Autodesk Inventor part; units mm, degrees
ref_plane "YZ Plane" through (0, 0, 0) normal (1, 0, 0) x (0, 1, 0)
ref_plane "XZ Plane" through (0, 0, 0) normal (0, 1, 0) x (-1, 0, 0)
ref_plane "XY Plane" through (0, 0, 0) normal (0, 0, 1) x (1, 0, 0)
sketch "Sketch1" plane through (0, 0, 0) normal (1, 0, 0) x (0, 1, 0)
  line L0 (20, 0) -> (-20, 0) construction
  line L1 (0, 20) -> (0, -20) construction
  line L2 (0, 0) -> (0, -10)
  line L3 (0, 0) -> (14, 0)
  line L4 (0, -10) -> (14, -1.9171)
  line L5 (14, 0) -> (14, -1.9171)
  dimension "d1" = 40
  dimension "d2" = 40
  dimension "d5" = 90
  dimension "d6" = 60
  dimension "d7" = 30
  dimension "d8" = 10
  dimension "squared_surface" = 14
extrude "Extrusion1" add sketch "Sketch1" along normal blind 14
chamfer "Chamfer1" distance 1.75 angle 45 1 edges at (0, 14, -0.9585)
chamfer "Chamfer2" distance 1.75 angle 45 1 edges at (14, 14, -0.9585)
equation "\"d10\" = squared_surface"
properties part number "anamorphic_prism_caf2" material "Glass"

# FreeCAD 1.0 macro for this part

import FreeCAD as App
import Part
import Sketcher

V = App.Vector
Q = App.Units.Quantity


def edges_at(feature, points):
    """Names of the edges that pass closest to the given points."""
    edges = feature.Shape.Edges
    near = lambda p: min(range(len(edges)), key=lambda i: edges[i].distToShape(Part.Vertex(*p))[0])
    return sorted({f"Edge{near(p) + 1}" for p in points})

doc = App.newDocument("Part")
params = doc.addObject("Spreadsheet::Sheet", "Params")
for row, (alias, value) in enumerate([
    ("sketch1_width", "14 mm"),
    ("sketch1_height", "10 mm"),
    ("pad1_length", "14 mm"),
    ("chamfer_size", "1.75 mm"),
    ("chamfer2_size", "1.75 mm"),
], start=1):
    params.set(f"A{row}", alias)
    params.set(f"B{row}", "=" + value)
    params.setAlias(f"B{row}", alias)

body = doc.addObject("PartDesign::Body", "Body")

# Sketch on YZ plane
sketch1 = doc.addObject("Sketcher::SketchObject", "Sketch")
body.addObject(sketch1)
sketch1.AttachmentSupport = (doc.YZ_Plane, [""])
sketch1.MapMode = "FlatFace"
sketch1.addGeometry(Part.LineSegment(V(14, 0, 0), V(0, 0, 0)), False)
sketch1.addGeometry(Part.LineSegment(V(0, 0, 0), V(0, -10, 0)), False)
sketch1.addGeometry(Part.LineSegment(V(0, -10, 0), V(14, -1.9, 0)), False)
sketch1.addGeometry(Part.LineSegment(V(14, -1.9, 0), V(14, 0, 0)), False)
sketch1.addConstraint(Sketcher.Constraint("Coincident", 0, 2, 1, 1))
sketch1.addConstraint(Sketcher.Constraint("Coincident", 1, 2, 2, 1))
sketch1.addConstraint(Sketcher.Constraint("Coincident", 2, 2, 3, 1))
sketch1.addConstraint(Sketcher.Constraint("Coincident", 3, 2, 0, 1))
sketch1.addConstraint(Sketcher.Constraint("Horizontal", 0))
sketch1.addConstraint(Sketcher.Constraint("Vertical", 1))
sketch1.addConstraint(Sketcher.Constraint("Vertical", 3))
sketch1.addConstraint(Sketcher.Constraint("Coincident", 0, 2, -1, 1))
sketch1.addConstraint(Sketcher.Constraint("DistanceX", 0, 2, 0, 1, Q("14 mm")))
sketch1.addConstraint(Sketcher.Constraint("DistanceY", 1, 2, 1, 1, Q("10 mm")))
sketch1.addConstraint(Sketcher.Constraint("Angle", 2, Q("30 deg")))
sketch1.setExpression("Constraints[8]", "Params.sketch1_width")
sketch1.setExpression("Constraints[9]", "Params.sketch1_height")
pad1 = doc.addObject("PartDesign::Pad", "Pad")
body.addObject(pad1)
pad1.Profile = sketch1
pad1.setExpression("Length", "Params.pad1_length")
doc.recompute()

chamfer = doc.addObject("PartDesign::Chamfer", "Chamfer")
body.addObject(chamfer)
chamfer.Base = (pad1, edges_at(pad1, [(0, 14, -0.959)]))
chamfer.setExpression("Size", "Params.chamfer_size")
doc.recompute()

chamfer2 = doc.addObject("PartDesign::Chamfer", "Chamfer001")
body.addObject(chamfer2)
chamfer2.Base = (chamfer, edges_at(chamfer, [(14, 14, -0.959)]))
chamfer2.setExpression("Size", "Params.chamfer2_size")

doc.recompute()
